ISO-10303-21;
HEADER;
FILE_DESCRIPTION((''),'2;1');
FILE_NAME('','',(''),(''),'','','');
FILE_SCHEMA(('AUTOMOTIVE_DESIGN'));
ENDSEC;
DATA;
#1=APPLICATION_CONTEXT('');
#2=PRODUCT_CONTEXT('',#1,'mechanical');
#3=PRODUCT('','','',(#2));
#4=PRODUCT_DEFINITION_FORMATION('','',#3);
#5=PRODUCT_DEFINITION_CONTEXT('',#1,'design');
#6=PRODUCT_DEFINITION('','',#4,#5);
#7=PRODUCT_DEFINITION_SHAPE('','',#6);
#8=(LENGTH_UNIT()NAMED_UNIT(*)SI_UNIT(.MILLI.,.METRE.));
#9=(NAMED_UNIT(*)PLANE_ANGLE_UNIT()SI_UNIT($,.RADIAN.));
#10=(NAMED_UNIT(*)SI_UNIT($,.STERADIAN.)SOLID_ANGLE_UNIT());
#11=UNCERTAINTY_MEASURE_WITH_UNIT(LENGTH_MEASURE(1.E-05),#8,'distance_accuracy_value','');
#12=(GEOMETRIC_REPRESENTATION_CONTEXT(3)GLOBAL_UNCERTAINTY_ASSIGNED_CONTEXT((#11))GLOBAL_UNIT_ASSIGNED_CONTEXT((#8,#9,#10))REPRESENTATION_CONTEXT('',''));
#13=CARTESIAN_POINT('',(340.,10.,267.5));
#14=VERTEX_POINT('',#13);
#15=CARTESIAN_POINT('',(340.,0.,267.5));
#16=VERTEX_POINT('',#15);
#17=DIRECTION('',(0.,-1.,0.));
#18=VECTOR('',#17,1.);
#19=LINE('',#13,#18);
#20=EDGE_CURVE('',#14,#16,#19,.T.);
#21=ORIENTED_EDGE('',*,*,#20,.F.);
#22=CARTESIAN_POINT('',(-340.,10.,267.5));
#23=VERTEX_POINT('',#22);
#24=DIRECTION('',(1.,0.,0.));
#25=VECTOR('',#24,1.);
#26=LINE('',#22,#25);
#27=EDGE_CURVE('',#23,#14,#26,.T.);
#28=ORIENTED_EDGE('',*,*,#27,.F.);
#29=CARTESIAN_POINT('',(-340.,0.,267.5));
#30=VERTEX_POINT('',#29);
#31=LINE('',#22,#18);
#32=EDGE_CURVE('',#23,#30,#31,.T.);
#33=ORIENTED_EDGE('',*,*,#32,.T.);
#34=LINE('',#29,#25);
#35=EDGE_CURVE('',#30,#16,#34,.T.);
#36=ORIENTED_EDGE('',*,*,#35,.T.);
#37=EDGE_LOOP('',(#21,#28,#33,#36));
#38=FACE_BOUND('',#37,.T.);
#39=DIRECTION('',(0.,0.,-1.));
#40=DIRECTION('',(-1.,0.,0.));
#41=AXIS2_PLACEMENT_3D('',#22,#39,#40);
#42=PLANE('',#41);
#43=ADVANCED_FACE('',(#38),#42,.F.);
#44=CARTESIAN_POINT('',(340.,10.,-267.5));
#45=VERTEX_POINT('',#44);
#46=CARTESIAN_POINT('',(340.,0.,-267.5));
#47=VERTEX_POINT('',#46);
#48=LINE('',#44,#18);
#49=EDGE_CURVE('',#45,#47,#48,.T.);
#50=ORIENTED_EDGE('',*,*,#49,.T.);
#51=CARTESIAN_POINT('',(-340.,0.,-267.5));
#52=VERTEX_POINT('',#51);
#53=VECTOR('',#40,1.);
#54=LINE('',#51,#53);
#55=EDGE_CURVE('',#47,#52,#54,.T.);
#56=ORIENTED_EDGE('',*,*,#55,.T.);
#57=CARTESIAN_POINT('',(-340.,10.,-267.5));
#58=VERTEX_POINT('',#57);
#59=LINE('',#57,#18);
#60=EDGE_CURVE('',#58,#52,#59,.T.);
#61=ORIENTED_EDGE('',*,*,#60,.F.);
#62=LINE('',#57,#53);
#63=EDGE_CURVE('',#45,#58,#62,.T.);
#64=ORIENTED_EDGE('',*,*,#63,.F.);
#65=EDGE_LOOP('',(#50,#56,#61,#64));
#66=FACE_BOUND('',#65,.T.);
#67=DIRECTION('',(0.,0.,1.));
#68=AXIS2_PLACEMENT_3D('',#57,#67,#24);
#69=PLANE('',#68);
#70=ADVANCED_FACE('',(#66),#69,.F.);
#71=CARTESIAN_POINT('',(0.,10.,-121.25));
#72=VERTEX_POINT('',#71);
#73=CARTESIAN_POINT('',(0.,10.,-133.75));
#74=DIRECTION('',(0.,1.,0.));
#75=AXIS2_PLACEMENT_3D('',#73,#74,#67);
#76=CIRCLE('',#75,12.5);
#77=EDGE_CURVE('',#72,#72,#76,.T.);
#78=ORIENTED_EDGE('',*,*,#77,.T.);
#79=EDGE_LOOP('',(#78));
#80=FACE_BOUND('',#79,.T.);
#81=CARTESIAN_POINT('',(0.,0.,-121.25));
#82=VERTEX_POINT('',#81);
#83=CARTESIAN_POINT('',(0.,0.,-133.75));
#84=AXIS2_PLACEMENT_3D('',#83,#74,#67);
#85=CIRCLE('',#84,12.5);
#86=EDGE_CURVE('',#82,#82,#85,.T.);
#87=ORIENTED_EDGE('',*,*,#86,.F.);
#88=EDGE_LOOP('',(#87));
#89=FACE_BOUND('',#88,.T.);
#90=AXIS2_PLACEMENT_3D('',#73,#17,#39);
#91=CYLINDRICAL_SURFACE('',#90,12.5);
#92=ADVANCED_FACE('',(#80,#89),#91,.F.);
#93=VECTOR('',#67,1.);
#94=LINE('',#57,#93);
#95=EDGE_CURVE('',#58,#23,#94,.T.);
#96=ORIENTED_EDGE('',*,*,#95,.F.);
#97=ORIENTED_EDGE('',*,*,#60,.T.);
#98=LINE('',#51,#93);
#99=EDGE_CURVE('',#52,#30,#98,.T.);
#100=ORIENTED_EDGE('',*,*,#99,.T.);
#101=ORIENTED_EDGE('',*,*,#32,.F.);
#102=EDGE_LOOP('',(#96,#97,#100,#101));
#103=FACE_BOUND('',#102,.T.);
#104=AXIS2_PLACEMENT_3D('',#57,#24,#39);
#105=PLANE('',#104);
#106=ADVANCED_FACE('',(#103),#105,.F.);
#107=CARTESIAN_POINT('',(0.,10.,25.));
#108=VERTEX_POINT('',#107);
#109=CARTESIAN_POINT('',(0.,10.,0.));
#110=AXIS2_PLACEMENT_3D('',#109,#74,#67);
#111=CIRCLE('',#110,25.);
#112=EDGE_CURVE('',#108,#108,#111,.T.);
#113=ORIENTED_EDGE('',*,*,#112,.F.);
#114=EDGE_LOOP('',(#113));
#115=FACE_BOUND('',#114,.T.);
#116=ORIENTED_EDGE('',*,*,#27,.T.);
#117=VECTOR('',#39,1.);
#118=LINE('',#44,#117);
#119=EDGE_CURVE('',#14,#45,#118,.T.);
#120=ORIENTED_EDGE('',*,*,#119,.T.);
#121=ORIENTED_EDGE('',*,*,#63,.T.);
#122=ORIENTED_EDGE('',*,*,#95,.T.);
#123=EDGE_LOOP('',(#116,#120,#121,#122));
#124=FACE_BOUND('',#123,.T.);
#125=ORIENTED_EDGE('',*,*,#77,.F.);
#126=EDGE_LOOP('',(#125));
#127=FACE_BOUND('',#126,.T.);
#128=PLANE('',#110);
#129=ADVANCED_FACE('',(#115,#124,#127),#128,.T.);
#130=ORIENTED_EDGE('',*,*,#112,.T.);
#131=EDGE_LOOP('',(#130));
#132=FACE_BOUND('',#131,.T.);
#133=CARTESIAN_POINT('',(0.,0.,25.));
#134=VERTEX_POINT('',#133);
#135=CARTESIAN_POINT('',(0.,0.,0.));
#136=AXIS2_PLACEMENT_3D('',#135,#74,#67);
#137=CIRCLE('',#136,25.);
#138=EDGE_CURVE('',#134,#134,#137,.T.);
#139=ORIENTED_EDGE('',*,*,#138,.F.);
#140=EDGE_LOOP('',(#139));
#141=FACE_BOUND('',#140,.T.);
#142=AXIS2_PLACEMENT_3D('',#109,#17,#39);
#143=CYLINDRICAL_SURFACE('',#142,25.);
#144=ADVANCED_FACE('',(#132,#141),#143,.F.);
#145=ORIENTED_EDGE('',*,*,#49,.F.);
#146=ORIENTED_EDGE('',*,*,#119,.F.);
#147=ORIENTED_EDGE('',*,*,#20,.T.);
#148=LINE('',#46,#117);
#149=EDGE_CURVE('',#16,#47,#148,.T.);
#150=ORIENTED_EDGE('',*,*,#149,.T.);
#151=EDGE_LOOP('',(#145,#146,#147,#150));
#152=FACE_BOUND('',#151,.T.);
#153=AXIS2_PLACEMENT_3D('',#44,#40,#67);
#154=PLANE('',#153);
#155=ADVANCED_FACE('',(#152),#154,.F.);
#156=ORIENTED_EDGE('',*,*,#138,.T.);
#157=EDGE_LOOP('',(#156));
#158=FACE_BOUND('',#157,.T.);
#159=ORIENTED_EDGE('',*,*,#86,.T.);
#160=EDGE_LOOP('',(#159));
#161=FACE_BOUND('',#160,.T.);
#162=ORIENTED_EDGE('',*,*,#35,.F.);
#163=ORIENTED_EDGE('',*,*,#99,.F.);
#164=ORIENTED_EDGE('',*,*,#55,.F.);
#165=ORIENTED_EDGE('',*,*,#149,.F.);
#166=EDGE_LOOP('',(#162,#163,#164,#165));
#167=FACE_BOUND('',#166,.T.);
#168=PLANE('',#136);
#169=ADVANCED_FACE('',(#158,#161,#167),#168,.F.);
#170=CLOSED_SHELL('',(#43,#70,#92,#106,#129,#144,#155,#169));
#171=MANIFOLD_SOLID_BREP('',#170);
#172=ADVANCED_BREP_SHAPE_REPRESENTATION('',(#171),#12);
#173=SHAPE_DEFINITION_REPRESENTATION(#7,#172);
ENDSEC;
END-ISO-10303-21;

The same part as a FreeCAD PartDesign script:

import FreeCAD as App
import Part
import Sketcher

V = App.Vector

doc = App.newDocument("Part")
body = doc.addObject("PartDesign::Body", "Body")

sketch1 = doc.addObject("Sketcher::SketchObject", "Sketch")
body.addObject(sketch1)
sketch1.AttachmentSupport = (doc.XZ_Plane, [""])
sketch1.MapMode = "FlatFace"
sketch1.addGeometry(Part.LineSegment(V(-340, -268, 0), V(-340, 268, 0)), False)
sketch1.addGeometry(Part.LineSegment(V(-340, 268, 0), V(340, 268, 0)), False)
sketch1.addGeometry(Part.LineSegment(V(340, 268, 0), V(340, -268, 0)), False)
sketch1.addGeometry(Part.LineSegment(V(340, -268, 0), V(-340, -268, 0)), False)
sketch1.addGeometry(Part.Circle(V(0, 0, 0), V(0, 0, 1), 25), False)
sketch1.addGeometry(Part.Circle(V(0, -134, 0), V(0, 0, 1), 12), False)
sketch1.addConstraint(Sketcher.Constraint("Coincident", 0, 2, 1, 1))
sketch1.addConstraint(Sketcher.Constraint("Coincident", 1, 2, 2, 1))
sketch1.addConstraint(Sketcher.Constraint("Coincident", 2, 2, 3, 1))
sketch1.addConstraint(Sketcher.Constraint("Coincident", 3, 2, 0, 1))
sketch1.addConstraint(Sketcher.Constraint("Vertical", 0))
sketch1.addConstraint(Sketcher.Constraint("Horizontal", 1))
sketch1.addConstraint(Sketcher.Constraint("Vertical", 2))
sketch1.addConstraint(Sketcher.Constraint("Horizontal", 3))
sketch1.addConstraint(Sketcher.Constraint("Coincident", 4, 3, -1, 1))
sketch1.addConstraint(Sketcher.Constraint("Symmetric", 0, 2, 2, 2, -1, 1))
sketch1.addConstraint(Sketcher.Constraint("PointOnObject", 5, 3, -2))
sketch1.addConstraint(Sketcher.Constraint("Diameter", 4, 50.0))
sketch1.addConstraint(Sketcher.Constraint("Diameter", 5, 25.0))
sketch1.addConstraint(Sketcher.Constraint("DistanceX", 1, 1, 1, 2, 680.0))
sketch1.addConstraint(Sketcher.Constraint("DistanceY", 0, 1, 0, 2, 535.0))
sketch1.addConstraint(Sketcher.Constraint("DistanceY", 5, 3, -1, 1, 133.75))
pad1 = doc.addObject("PartDesign::Pad", "Pad")
body.addObject(pad1)
pad1.Profile = sketch1
pad1.Length = 10
pad1.Reversed = True

doc.recompute()
